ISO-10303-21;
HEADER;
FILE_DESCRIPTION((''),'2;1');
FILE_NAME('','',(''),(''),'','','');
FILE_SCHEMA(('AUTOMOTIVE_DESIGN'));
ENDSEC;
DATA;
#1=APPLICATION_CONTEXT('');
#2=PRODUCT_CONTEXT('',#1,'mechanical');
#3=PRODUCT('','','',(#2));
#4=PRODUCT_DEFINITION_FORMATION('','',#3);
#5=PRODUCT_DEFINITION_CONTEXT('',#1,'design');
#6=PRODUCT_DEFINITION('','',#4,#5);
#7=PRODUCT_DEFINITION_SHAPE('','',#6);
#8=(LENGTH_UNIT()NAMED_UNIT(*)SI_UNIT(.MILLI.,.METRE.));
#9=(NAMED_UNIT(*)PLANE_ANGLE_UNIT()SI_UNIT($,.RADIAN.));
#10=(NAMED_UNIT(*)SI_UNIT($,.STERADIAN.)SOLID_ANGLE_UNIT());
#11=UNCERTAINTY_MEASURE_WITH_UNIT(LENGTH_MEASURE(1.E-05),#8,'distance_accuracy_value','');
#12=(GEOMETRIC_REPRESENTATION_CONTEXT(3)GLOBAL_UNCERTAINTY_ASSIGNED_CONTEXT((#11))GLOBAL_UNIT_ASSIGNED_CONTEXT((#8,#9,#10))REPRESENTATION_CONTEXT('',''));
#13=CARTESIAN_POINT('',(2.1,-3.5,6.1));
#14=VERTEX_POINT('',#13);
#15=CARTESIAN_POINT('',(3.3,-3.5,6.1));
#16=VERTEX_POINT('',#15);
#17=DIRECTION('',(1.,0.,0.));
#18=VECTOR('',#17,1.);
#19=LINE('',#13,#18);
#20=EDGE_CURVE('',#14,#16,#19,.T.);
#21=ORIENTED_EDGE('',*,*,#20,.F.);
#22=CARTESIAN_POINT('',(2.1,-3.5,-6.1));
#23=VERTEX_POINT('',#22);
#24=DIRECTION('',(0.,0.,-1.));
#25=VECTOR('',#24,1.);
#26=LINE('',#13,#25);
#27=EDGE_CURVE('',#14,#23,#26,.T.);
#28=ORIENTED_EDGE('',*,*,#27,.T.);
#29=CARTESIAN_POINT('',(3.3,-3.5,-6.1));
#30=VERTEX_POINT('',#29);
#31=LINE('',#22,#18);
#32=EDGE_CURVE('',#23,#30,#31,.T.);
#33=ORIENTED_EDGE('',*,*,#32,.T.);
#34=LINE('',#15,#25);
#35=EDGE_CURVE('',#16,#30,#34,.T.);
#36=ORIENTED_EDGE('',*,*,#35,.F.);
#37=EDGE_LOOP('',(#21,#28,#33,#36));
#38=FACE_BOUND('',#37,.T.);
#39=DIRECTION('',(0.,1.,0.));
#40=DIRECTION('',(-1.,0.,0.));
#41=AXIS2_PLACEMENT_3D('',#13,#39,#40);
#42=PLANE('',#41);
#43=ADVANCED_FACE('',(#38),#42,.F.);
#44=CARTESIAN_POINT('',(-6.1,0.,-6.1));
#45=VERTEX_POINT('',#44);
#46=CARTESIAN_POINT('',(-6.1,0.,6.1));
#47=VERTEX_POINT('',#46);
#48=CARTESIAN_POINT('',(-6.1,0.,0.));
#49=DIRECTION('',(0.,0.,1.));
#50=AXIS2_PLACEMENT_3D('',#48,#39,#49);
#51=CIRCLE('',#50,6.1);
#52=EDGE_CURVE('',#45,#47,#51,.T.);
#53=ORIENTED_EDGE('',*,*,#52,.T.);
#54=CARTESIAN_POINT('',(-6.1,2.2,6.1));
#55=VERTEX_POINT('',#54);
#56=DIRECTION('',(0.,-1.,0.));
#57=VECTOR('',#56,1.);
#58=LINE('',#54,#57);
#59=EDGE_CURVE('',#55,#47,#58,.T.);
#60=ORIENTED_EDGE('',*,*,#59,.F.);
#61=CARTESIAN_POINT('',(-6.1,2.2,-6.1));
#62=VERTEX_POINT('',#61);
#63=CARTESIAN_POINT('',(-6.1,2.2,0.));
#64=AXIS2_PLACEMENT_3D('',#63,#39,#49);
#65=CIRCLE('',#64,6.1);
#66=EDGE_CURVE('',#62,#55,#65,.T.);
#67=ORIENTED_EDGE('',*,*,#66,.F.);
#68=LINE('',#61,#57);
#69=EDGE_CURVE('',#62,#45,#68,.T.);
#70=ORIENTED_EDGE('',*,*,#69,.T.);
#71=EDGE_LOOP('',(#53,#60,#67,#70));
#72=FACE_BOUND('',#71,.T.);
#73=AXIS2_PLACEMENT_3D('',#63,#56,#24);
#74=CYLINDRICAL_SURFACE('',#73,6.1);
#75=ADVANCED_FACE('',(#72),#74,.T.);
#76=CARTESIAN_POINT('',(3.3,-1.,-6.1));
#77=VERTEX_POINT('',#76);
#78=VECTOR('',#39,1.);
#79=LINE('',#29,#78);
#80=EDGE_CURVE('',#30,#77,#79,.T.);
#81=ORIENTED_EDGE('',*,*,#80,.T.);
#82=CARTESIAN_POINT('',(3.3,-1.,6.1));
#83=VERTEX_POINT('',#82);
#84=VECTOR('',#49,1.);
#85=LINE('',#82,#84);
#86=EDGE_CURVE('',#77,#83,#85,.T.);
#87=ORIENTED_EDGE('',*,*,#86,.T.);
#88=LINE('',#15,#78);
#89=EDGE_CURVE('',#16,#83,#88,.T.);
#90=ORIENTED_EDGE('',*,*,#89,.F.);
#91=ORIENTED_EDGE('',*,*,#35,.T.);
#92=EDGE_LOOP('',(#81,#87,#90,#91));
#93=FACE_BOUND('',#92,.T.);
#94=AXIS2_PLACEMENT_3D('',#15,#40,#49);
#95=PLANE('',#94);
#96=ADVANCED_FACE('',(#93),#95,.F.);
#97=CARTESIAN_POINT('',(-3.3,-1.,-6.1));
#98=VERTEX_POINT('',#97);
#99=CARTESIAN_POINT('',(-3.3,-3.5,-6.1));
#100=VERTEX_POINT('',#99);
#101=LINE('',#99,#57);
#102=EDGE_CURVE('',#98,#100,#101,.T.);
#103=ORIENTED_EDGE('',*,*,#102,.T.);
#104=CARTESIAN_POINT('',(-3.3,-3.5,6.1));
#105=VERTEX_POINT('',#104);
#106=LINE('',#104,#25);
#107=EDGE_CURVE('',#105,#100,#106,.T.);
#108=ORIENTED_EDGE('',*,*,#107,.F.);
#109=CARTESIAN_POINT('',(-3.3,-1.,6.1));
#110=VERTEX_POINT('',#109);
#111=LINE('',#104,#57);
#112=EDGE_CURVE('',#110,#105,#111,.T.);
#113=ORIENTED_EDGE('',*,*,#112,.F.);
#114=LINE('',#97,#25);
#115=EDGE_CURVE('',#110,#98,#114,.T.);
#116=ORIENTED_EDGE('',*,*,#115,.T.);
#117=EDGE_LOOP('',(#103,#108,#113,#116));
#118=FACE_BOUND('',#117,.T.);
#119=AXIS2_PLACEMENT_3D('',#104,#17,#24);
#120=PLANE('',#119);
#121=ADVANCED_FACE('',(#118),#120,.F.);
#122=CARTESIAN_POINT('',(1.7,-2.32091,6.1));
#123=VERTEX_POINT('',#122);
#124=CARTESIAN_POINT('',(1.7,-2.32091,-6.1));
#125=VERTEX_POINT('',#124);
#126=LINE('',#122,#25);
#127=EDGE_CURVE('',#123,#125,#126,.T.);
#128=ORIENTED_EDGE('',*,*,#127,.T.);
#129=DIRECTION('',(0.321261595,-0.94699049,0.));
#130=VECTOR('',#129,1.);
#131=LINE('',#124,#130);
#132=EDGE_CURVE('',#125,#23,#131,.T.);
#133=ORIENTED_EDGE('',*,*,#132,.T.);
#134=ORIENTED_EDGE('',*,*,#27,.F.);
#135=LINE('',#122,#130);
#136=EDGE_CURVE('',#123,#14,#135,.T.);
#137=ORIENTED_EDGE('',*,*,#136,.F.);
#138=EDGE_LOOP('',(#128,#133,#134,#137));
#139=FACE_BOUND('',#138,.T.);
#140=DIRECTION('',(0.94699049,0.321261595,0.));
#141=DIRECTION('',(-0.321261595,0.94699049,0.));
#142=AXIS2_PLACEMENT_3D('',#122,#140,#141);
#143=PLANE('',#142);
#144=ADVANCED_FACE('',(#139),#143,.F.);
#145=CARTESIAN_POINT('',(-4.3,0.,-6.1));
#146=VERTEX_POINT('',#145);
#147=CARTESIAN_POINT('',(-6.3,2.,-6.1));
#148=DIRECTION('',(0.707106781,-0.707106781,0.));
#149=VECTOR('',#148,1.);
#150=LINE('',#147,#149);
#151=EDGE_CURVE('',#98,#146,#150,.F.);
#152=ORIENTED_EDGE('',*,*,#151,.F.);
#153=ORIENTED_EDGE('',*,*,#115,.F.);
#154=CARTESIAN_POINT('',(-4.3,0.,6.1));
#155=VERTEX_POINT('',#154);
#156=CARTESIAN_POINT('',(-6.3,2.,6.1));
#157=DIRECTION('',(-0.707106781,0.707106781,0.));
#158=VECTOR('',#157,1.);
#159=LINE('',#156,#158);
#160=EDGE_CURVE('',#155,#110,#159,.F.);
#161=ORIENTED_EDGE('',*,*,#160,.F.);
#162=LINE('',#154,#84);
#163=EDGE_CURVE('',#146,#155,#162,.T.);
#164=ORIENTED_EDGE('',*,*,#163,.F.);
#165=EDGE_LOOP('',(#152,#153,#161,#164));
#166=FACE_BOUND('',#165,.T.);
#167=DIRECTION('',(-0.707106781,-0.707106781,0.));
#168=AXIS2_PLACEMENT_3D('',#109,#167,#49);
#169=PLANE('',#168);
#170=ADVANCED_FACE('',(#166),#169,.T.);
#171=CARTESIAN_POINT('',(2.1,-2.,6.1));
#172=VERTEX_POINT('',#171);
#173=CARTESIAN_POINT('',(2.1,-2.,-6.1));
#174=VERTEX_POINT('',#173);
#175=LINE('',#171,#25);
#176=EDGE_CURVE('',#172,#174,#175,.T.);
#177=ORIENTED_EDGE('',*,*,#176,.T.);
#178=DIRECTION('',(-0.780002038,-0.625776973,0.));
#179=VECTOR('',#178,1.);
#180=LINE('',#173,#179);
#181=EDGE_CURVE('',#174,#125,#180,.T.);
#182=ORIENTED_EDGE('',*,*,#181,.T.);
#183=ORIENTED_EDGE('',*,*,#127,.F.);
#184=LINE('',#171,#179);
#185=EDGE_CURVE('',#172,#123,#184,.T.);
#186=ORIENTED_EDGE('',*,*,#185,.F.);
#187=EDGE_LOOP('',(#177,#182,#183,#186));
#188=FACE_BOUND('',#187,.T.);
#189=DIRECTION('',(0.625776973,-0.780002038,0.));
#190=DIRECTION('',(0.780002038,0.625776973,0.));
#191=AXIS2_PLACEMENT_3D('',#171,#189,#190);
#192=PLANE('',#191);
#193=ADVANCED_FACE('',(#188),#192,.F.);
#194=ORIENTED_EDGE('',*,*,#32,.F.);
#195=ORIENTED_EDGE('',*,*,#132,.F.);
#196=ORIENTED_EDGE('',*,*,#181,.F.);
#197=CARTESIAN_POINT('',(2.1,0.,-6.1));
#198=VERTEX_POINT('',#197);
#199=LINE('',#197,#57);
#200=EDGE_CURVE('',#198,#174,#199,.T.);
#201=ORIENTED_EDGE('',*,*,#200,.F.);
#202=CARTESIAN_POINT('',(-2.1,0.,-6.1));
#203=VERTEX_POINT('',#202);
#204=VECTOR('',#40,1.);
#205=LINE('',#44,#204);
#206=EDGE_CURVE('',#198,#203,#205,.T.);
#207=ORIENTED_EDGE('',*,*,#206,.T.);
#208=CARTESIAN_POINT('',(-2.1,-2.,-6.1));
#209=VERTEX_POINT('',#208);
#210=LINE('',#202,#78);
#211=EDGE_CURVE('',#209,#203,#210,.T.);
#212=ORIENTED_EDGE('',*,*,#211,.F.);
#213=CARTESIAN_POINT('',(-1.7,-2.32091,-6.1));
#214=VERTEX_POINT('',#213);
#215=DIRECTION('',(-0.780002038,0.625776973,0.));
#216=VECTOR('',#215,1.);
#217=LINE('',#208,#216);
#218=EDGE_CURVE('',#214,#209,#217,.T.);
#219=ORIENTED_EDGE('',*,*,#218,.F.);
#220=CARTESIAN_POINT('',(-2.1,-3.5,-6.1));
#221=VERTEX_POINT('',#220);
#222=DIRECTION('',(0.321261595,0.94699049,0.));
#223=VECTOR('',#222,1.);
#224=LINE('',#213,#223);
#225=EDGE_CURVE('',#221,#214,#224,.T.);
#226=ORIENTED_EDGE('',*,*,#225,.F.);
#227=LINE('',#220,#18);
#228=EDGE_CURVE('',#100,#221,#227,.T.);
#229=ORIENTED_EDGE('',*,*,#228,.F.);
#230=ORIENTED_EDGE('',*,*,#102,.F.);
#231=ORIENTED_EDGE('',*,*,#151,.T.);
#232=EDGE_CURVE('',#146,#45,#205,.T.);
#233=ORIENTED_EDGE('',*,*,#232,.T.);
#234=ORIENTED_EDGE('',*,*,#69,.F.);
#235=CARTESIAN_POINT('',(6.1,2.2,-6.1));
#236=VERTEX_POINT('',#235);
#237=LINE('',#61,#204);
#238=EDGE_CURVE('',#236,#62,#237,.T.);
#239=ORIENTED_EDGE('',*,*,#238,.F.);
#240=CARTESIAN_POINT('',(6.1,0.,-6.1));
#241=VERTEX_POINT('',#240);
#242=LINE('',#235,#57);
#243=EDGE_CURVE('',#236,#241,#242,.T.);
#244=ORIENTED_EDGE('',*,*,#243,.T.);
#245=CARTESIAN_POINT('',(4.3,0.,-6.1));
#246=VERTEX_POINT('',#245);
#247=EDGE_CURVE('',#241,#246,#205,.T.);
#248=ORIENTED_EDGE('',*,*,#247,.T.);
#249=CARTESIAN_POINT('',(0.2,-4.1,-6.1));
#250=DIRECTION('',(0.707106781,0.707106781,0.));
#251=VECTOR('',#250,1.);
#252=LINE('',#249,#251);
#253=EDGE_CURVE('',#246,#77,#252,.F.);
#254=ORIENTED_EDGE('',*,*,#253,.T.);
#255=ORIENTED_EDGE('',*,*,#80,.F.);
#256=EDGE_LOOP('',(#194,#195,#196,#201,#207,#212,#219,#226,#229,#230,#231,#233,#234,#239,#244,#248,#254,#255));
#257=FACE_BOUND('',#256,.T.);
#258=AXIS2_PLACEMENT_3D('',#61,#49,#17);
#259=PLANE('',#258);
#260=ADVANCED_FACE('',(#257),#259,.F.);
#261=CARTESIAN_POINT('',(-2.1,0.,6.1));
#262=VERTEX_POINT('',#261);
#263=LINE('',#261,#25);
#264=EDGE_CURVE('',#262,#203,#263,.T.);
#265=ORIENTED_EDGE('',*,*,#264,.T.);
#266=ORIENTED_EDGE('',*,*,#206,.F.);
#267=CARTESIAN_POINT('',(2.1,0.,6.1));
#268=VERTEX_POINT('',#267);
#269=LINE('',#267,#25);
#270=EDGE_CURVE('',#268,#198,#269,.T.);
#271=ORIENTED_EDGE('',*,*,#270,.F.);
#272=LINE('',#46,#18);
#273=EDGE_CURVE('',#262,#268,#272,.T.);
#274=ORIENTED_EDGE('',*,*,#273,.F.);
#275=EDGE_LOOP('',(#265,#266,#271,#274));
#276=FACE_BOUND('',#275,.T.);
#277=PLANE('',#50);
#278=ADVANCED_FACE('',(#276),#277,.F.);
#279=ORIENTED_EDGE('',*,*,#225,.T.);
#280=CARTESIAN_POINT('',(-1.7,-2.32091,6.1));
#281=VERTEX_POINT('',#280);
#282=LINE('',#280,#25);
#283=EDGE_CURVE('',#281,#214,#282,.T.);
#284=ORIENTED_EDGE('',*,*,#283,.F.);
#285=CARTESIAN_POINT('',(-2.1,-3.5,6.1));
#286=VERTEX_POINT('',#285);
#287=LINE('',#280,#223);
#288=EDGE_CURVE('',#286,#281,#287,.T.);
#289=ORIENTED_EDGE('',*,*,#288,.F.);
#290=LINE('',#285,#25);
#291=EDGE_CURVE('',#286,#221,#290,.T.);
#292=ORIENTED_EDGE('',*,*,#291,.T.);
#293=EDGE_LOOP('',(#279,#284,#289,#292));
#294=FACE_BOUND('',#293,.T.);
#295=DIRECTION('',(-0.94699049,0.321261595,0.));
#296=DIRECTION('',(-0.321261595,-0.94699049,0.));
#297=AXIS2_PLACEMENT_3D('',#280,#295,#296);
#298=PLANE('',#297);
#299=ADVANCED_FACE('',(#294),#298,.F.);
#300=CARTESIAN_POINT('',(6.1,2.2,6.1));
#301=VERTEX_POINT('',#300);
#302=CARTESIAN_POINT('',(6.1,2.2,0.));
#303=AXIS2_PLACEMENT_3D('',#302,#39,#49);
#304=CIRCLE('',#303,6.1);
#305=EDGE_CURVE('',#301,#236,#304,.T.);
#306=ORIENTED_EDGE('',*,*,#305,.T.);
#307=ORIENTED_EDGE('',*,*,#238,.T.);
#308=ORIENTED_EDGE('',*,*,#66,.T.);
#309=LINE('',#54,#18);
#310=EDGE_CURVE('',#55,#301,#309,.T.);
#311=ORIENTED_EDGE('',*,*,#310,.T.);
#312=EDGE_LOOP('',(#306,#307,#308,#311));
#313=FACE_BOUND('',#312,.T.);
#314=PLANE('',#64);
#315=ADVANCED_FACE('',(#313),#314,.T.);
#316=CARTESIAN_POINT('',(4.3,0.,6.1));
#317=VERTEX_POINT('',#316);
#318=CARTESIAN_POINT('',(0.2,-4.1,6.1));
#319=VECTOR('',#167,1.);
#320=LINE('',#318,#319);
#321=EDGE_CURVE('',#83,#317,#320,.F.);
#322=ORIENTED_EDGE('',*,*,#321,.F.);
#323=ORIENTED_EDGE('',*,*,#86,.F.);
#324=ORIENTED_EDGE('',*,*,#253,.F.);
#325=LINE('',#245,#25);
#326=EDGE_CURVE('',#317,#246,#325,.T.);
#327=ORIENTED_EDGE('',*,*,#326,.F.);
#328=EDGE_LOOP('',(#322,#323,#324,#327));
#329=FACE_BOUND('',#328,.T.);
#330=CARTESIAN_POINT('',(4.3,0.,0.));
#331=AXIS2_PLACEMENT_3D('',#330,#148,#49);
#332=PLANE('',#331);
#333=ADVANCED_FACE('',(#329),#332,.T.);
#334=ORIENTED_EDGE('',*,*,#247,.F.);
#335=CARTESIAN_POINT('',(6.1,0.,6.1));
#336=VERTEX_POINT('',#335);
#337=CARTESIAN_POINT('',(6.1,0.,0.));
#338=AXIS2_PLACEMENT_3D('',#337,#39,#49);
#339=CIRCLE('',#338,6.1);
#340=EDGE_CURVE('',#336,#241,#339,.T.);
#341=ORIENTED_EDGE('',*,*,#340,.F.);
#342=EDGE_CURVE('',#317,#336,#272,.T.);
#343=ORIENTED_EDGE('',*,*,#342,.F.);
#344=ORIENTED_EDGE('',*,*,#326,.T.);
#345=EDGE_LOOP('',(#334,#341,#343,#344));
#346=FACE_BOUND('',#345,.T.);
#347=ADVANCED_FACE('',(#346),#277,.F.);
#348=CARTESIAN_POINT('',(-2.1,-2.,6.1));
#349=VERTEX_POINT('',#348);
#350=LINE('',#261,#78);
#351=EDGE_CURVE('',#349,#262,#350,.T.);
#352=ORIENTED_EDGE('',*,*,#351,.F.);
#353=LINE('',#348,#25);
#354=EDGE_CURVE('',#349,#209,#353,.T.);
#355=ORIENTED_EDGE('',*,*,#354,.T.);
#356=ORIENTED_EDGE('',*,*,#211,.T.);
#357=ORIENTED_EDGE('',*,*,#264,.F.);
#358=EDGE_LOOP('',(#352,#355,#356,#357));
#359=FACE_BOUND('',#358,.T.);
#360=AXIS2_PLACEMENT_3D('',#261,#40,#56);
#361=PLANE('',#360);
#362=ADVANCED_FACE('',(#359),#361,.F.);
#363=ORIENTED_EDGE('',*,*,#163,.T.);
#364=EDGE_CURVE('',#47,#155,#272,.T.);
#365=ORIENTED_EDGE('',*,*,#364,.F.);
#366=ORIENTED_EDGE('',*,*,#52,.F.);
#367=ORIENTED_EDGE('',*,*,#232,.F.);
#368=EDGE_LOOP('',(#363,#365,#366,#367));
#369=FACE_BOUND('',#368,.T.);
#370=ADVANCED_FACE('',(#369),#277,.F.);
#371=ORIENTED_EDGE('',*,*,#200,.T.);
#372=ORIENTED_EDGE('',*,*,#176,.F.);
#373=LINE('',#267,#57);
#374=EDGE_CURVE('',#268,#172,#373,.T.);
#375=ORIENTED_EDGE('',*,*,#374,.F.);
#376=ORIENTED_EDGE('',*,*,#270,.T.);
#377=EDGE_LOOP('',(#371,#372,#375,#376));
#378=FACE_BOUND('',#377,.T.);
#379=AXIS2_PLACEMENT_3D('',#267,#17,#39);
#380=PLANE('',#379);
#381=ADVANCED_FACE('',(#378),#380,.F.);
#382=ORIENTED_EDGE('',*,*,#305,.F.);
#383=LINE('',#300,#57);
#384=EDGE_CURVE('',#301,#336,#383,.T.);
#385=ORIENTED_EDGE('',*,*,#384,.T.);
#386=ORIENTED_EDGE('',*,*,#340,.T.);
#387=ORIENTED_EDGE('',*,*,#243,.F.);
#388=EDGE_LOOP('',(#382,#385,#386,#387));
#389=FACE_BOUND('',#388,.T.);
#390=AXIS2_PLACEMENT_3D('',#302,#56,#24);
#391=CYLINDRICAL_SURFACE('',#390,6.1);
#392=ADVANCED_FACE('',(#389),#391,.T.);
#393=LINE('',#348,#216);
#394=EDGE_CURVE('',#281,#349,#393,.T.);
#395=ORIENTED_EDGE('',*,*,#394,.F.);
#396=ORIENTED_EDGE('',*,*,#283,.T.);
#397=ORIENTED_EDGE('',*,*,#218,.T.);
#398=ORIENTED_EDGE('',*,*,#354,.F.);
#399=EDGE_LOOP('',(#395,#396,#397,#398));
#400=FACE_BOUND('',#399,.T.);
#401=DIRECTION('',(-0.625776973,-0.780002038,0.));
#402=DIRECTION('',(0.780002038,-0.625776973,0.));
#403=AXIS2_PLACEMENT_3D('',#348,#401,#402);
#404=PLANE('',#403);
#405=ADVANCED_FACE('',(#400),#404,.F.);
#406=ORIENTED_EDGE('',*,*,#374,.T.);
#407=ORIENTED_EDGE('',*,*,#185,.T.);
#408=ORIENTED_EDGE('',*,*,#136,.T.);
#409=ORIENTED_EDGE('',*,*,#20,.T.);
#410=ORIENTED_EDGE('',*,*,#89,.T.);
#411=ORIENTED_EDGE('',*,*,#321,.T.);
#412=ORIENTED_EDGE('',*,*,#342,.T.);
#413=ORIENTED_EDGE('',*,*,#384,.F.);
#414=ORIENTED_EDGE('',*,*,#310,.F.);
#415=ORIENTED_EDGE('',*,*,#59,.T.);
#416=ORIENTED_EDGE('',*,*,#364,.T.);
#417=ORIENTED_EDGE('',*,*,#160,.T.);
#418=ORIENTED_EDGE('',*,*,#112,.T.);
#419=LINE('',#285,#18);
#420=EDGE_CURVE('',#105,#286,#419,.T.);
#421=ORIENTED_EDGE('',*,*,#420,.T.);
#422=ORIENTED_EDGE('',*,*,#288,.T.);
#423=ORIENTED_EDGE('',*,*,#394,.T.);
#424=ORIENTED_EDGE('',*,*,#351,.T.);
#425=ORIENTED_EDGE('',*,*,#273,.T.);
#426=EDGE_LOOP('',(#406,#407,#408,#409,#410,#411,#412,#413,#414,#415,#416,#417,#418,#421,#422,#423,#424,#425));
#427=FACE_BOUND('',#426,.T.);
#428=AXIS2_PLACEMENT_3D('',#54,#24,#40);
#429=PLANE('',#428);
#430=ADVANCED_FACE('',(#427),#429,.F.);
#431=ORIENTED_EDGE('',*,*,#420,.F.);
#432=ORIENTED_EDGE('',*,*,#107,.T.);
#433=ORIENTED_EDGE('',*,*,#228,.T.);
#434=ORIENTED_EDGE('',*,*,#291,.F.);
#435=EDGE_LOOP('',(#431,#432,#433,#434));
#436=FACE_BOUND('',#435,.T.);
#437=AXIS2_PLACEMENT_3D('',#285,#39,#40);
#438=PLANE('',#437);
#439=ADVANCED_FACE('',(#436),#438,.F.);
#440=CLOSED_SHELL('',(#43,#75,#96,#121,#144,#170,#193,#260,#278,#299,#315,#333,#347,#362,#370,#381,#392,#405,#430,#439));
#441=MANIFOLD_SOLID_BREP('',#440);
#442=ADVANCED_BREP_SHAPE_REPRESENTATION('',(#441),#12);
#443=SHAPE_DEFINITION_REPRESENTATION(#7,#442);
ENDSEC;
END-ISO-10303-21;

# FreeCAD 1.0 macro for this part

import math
import FreeCAD as App
import Part
import Sketcher
Q = App.Units.Quantity


def edges_at(feature, points):
    """Names of the edges that pass closest to the given points."""
    edges = feature.Shape.Edges
    near = lambda p: min(range(len(edges)), key=lambda i: edges[i].distToShape(Part.Vertex(*p))[0])
    return sorted({f"Edge{near(p) + 1}" for p in points})

doc = App.newDocument("Part")
body = doc.addObject("PartDesign::Body", "Body")

# Sketch on XZ plane
sketch1 = body.newObject("Sketcher::SketchObject", "Sketch")
sketch1.AttachmentSupport = (doc.getObject("XZ_Plane"), [""])
sketch1.MapMode = "FlatFace"
sketch1.addGeometry(Part.LineSegment(App.Vector(6, -6, 0), App.Vector(-6, -6, 0)), False)
sketch1.addGeometry(Part.ArcOfCircle(Part.Circle(App.Vector(-6, 0, 0), App.Vector(0, 0, 1), 6), math.radians(90), math.radians(270)), False)
sketch1.addGeometry(Part.LineSegment(App.Vector(-6, 6, 0), App.Vector(6, 6, 0)), False)
sketch1.addGeometry(Part.ArcOfCircle(Part.Circle(App.Vector(6, 0, 0), App.Vector(0, 0, 1), 6), math.radians(-90), math.radians(90)), False)
sketch1.addConstraint(Sketcher.Constraint("Tangent", 0, 2, 1, 2))
sketch1.addConstraint(Sketcher.Constraint("Tangent", 1, 1, 2, 1))
sketch1.addConstraint(Sketcher.Constraint("Tangent", 2, 2, 3, 2))
sketch1.addConstraint(Sketcher.Constraint("Tangent", 3, 1, 0, 1))
sketch1.addConstraint(Sketcher.Constraint("Horizontal", 0))
sketch1.addConstraint(Sketcher.Constraint("Horizontal", 2))
sketch1.addConstraint(Sketcher.Constraint("Symmetric", 1, 3, 3, 3, -1, 1))
sketch1.addConstraint(Sketcher.Constraint("Radius", 1, Q("6.1 mm")))
sketch1.addConstraint(Sketcher.Constraint("DistanceX", 0, 2, 0, 1, Q("12.2 mm")))
pad1 = body.newObject("PartDesign::Pad", "Pad")
pad1.Profile = sketch1
pad1.Length = 2.2
pad1.Reversed = True

# Sketch on XY plane
sketch2 = body.newObject("Sketcher::SketchObject", "Sketch001")
sketch2.AttachmentSupport = (doc.getObject("XY_Plane"), [""])
sketch2.MapMode = "FlatFace"
sketch2.addGeometry(Part.LineSegment(App.Vector(-2.1, -2, 0), App.Vector(-2.1, 0, 0)), False)
sketch2.addGeometry(Part.LineSegment(App.Vector(-2.1, 0, 0), App.Vector(-3.3, 0, 0)), False)
sketch2.addGeometry(Part.LineSegment(App.Vector(-3.3, 0, 0), App.Vector(-3.3, -3.5, 0)), False)
sketch2.addGeometry(Part.LineSegment(App.Vector(-3.3, -3.5, 0), App.Vector(-2.1, -3.5, 0)), False)
sketch2.addGeometry(Part.LineSegment(App.Vector(-2.1, -3.5, 0), App.Vector(-1.7, -2.3, 0)), False)
sketch2.addGeometry(Part.LineSegment(App.Vector(-1.7, -2.3, 0), App.Vector(-2.1, -2, 0)), False)
sketch2.addGeometry(Part.LineSegment(App.Vector(2.1, -3.5, 0), App.Vector(3.3, -3.5, 0)), False)
sketch2.addGeometry(Part.LineSegment(App.Vector(3.3, -3.5, 0), App.Vector(3.3, 0, 0)), False)
sketch2.addGeometry(Part.LineSegment(App.Vector(3.3, 0, 0), App.Vector(2.1, 0, 0)), False)
sketch2.addGeometry(Part.LineSegment(App.Vector(2.1, 0, 0), App.Vector(2.1, -2, 0)), False)
sketch2.addGeometry(Part.LineSegment(App.Vector(2.1, -2, 0), App.Vector(1.7, -2.3, 0)), False)
sketch2.addGeometry(Part.LineSegment(App.Vector(1.7, -2.3, 0), App.Vector(2.1, -3.5, 0)), False)
sketch2.addConstraint(Sketcher.Constraint("Coincident", 0, 2, 1, 1))
sketch2.addConstraint(Sketcher.Constraint("Coincident", 1, 2, 2, 1))
sketch2.addConstraint(Sketcher.Constraint("Coincident", 2, 2, 3, 1))
sketch2.addConstraint(Sketcher.Constraint("Coincident", 3, 2, 4, 1))
sketch2.addConstraint(Sketcher.Constraint("Coincident", 4, 2, 5, 1))
sketch2.addConstraint(Sketcher.Constraint("Coincident", 5, 2, 0, 1))
sketch2.addConstraint(Sketcher.Constraint("Coincident", 6, 2, 7, 1))
sketch2.addConstraint(Sketcher.Constraint("Coincident", 7, 2, 8, 1))
sketch2.addConstraint(Sketcher.Constraint("Coincident", 8, 2, 9, 1))
sketch2.addConstraint(Sketcher.Constraint("Coincident", 9, 2, 10, 1))
sketch2.addConstraint(Sketcher.Constraint("Coincident", 10, 2, 11, 1))
sketch2.addConstraint(Sketcher.Constraint("Coincident", 11, 2, 6, 1))
sketch2.addConstraint(Sketcher.Constraint("Vertical", 0))
sketch2.addConstraint(Sketcher.Constraint("Horizontal", 1))
sketch2.addConstraint(Sketcher.Constraint("Vertical", 2))
sketch2.addConstraint(Sketcher.Constraint("Horizontal", 3))
sketch2.addConstraint(Sketcher.Constraint("Horizontal", 6))
sketch2.addConstraint(Sketcher.Constraint("Vertical", 7))
sketch2.addConstraint(Sketcher.Constraint("Horizontal", 8))
sketch2.addConstraint(Sketcher.Constraint("Vertical", 9))
sketch2.addConstraint(Sketcher.Constraint("Symmetric", 1, 2, 7, 2, -1, 1))
sketch2.addConstraint(Sketcher.Constraint("Symmetric", 0, 2, 8, 2, -2))
sketch2.addConstraint(Sketcher.Constraint("Symmetric", 4, 2, 10, 2, -2))
sketch2.addConstraint(Sketcher.Constraint("Symmetric", 3, 2, 11, 2, -2))
sketch2.addConstraint(Sketcher.Constraint("Horizontal", 5, 2, 9, 2))
sketch2.addConstraint(Sketcher.Constraint("Vertical", 0, 2, 3, 2))
sketch2.addConstraint(Sketcher.Constraint("DistanceY", 0, 1, 0, 2, Q("2 mm")))
sketch2.addConstraint(Sketcher.Constraint("DistanceX", 1, 2, 1, 1, Q("1.2 mm")))
sketch2.addConstraint(Sketcher.Constraint("DistanceY", 2, 2, 2, 1, Q("3.5 mm")))
sketch2.addConstraint(Sketcher.Constraint("DistanceX", 4, 2, 6, 2, Q("5 mm")))
sketch2.addConstraint(Sketcher.Constraint("DistanceX", 0, 2, -1, 1, Q("2.1 mm")))
sketch2.addConstraint(Sketcher.Constraint("Distance", 4, Q("1.245091 mm")))
pad2 = body.newObject("PartDesign::Pad", "Pad001")
pad2.Profile = sketch2
pad2.Length = 12.2
pad2.Midplane = True
doc.recompute()

chamfer = body.newObject("PartDesign::Chamfer", "Chamfer")
chamfer.Base = (pad2, edges_at(pad2, [(-3.3, 0, 0), (3.3, 0, 0)]))
chamfer.Size = 1

doc.recompute()
